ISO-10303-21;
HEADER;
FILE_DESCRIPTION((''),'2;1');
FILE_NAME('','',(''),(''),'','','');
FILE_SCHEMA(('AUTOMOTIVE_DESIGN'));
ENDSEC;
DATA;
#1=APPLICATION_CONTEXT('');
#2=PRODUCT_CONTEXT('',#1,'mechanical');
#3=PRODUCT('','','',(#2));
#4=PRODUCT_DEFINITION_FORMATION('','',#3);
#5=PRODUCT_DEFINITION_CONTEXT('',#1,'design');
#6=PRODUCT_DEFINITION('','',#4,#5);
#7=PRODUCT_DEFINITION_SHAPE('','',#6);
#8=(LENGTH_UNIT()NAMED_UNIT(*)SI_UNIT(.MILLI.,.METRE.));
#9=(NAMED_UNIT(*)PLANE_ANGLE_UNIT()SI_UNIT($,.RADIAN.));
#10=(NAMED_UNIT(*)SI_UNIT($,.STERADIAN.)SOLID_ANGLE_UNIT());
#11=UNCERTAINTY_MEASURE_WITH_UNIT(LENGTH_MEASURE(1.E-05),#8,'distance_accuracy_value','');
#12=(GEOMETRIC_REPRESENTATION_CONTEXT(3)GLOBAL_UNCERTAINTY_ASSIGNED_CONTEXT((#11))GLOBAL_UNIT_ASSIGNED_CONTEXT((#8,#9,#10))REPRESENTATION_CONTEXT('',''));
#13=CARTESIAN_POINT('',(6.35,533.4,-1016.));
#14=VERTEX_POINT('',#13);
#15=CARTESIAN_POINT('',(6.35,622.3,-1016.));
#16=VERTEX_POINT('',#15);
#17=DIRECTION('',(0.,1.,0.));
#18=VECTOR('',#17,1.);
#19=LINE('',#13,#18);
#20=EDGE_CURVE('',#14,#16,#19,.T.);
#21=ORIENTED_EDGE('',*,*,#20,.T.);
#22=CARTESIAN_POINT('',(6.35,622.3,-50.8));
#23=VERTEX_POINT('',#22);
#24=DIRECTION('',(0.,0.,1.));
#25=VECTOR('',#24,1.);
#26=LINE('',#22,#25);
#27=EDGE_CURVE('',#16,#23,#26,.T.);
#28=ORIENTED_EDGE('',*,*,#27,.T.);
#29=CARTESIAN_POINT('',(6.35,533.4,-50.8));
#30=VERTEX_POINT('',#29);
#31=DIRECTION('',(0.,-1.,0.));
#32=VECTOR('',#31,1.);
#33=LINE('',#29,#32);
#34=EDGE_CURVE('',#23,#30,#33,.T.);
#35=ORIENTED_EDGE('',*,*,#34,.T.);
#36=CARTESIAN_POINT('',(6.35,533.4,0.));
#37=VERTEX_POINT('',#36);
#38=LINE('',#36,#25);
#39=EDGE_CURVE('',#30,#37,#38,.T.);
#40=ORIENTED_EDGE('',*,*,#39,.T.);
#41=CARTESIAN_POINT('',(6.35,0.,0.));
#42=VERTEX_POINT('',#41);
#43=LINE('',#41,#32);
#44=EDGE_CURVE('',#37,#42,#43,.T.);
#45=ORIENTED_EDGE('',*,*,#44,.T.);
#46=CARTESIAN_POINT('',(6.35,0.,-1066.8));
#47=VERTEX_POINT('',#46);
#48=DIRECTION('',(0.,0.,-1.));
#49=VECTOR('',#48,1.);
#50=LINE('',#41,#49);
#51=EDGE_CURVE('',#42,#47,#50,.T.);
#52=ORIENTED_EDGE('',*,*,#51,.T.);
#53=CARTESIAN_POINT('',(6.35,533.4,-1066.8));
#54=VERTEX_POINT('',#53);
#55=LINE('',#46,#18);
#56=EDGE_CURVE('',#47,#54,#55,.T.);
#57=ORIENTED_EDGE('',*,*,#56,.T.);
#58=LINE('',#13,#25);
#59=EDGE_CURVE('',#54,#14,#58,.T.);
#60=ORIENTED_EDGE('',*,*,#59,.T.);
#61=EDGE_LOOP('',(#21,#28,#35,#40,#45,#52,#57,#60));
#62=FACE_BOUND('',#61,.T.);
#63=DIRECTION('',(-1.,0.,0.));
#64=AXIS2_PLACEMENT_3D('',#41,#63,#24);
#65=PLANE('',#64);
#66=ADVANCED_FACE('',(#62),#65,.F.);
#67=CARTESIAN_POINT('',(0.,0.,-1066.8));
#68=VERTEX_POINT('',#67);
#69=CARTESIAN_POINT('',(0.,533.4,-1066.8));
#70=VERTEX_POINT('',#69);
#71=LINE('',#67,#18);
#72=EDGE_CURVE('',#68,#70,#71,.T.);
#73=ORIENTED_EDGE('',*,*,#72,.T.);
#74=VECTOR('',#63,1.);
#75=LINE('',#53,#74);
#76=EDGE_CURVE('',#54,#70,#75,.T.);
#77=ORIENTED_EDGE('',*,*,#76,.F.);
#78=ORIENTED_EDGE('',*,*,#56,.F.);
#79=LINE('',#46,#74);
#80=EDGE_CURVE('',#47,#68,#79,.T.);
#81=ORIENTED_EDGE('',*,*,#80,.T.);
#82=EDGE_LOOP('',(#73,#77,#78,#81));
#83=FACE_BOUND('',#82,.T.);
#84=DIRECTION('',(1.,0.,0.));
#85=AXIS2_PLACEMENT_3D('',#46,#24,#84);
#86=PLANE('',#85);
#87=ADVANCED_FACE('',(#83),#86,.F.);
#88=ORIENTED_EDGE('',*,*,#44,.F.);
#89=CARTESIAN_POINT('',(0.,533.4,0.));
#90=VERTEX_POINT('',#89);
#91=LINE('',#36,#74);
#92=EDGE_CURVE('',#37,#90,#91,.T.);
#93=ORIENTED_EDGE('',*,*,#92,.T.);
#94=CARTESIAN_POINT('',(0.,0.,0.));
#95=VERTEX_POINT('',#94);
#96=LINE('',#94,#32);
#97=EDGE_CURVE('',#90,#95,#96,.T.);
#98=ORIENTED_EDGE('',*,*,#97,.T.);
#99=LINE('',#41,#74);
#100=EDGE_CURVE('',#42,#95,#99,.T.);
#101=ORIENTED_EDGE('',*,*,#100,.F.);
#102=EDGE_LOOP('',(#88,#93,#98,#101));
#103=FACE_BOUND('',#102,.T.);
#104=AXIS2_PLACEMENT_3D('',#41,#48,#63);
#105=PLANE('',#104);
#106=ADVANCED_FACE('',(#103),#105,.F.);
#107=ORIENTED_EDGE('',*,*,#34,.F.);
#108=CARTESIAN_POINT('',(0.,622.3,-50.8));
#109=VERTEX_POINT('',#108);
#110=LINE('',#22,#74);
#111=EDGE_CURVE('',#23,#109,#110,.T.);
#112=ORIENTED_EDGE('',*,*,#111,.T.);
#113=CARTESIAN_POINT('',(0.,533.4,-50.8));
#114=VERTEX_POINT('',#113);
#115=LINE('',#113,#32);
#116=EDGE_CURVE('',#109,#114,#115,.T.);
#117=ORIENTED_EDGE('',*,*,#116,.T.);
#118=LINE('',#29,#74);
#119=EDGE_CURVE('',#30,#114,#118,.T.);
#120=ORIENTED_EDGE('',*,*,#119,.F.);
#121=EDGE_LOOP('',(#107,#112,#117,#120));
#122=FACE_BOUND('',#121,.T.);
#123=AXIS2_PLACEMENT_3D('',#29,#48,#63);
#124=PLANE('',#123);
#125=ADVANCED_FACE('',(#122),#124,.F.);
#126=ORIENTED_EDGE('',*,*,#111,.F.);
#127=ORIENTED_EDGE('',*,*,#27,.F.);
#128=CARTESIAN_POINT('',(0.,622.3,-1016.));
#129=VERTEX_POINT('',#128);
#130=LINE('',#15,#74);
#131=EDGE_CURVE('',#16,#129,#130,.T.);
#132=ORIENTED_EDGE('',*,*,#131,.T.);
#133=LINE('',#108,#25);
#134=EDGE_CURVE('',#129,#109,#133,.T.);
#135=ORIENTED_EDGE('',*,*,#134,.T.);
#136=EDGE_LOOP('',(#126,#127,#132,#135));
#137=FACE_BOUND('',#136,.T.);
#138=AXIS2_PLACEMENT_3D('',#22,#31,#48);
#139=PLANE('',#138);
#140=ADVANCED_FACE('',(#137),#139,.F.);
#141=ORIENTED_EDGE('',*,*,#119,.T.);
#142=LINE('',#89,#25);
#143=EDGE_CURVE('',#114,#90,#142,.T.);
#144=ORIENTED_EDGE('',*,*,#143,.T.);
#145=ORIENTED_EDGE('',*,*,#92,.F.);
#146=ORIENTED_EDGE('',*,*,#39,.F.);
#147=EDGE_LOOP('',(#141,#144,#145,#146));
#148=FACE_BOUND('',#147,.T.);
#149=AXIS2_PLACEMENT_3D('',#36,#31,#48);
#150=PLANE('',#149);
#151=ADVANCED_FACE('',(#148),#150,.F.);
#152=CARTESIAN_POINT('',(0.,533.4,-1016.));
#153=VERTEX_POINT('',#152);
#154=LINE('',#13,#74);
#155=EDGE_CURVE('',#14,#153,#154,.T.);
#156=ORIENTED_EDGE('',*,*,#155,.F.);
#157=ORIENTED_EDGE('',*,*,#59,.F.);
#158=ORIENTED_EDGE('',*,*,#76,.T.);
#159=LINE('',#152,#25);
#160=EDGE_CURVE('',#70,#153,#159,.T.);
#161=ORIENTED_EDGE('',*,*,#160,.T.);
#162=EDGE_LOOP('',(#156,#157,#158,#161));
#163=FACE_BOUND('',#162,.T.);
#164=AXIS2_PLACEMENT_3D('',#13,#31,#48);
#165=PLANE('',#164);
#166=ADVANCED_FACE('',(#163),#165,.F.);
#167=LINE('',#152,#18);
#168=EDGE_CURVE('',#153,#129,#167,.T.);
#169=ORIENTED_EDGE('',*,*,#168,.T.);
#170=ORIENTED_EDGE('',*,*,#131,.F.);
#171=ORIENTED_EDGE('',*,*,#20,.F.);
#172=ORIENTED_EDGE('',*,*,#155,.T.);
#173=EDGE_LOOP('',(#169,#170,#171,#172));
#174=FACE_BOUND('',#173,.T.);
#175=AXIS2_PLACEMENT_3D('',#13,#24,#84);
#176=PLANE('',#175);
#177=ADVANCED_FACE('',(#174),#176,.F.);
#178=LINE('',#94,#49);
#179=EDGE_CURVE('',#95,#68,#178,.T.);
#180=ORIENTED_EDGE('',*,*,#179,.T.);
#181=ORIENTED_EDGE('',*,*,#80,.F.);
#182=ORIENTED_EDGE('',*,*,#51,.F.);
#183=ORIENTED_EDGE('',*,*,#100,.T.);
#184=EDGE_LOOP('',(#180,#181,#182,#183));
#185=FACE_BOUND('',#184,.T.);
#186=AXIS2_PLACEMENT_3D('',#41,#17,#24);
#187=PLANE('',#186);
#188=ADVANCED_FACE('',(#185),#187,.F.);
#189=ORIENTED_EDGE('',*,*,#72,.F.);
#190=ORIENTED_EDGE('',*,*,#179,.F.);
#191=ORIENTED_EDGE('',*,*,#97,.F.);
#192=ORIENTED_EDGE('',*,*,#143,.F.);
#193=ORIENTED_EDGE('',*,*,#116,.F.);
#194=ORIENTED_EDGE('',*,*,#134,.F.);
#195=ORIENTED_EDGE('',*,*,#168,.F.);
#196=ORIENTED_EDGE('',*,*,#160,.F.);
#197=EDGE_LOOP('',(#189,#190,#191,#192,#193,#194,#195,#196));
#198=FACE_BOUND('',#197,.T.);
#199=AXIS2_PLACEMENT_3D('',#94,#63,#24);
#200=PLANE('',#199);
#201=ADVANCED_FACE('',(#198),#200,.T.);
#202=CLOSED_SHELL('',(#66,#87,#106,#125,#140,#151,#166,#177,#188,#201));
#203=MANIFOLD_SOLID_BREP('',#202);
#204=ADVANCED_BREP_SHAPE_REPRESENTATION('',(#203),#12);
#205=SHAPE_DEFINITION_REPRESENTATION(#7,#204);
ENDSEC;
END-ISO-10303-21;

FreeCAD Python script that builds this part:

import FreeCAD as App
import Part
import Sketcher
from FreeCAD import Vector
Q = App.Units.Quantity


def add_polygon(sketch, points):
    """Adds a closed chain of lines whose ends are joined by coincident constraints."""
    first, n = sketch.GeometryCount, len(points)
    for a, b in zip(points, points[1:] + points[:1]):
        sketch.addGeometry(Part.LineSegment(App.Vector(*a, 0), App.Vector(*b, 0)), False)
    for i in range(n):
        sketch.addConstraint(Sketcher.Constraint("Coincident", first + i, 2, first + (i + 1) % n, 1))

doc = App.newDocument("Part")
body = doc.addObject("PartDesign::Body", "Body")

sketch1 = doc.addObject("Sketcher::SketchObject", "Sketch")
body.addObject(sketch1)
sketch1.AttachmentSupport = (doc.YZ_Plane, [""])
sketch1.MapMode = "FlatFace"
add_polygon(sketch1, [(533, -1067), (533, -1016), (622, -1016), (622, -51), (533, -51), (533, 0), (0, 0), (0, -1067)])
sketch1.addConstraint(Sketcher.Constraint("Vertical", 0))
sketch1.addConstraint(Sketcher.Constraint("Horizontal", 1))
sketch1.addConstraint(Sketcher.Constraint("Vertical", 2))
sketch1.addConstraint(Sketcher.Constraint("Horizontal", 3))
sketch1.addConstraint(Sketcher.Constraint("Vertical", 4))
sketch1.addConstraint(Sketcher.Constraint("Horizontal", 5))
sketch1.addConstraint(Sketcher.Constraint("Vertical", 6))
sketch1.addConstraint(Sketcher.Constraint("Horizontal", 7))
sketch1.addConstraint(Sketcher.Constraint("Coincident", 5, 2, -1, 1))
sketch1.addConstraint(Sketcher.Constraint("Vertical", 0, 2, 3, 2))
sketch1.addConstraint(Sketcher.Constraint("Equal", 0, 4))
sketch1.addConstraint(Sketcher.Constraint("DistanceX", 5, 2, 5, 1, Q("21 in")))
sketch1.addConstraint(Sketcher.Constraint("DistanceY", 0, 1, 0, 2, Q("2 in")))
sketch1.addConstraint(Sketcher.Constraint("DistanceY", 2, 1, 2, 2, Q("38 in")))
sketch1.addConstraint(Sketcher.Constraint("DistanceX", 1, 1, 1, 2, Q("3.5 in")))
pad1 = doc.addObject("PartDesign::Pad", "Pad")
body.addObject(pad1)
pad1.Profile = sketch1
pad1.Length = Q("0.25 in")

doc.recompute()
